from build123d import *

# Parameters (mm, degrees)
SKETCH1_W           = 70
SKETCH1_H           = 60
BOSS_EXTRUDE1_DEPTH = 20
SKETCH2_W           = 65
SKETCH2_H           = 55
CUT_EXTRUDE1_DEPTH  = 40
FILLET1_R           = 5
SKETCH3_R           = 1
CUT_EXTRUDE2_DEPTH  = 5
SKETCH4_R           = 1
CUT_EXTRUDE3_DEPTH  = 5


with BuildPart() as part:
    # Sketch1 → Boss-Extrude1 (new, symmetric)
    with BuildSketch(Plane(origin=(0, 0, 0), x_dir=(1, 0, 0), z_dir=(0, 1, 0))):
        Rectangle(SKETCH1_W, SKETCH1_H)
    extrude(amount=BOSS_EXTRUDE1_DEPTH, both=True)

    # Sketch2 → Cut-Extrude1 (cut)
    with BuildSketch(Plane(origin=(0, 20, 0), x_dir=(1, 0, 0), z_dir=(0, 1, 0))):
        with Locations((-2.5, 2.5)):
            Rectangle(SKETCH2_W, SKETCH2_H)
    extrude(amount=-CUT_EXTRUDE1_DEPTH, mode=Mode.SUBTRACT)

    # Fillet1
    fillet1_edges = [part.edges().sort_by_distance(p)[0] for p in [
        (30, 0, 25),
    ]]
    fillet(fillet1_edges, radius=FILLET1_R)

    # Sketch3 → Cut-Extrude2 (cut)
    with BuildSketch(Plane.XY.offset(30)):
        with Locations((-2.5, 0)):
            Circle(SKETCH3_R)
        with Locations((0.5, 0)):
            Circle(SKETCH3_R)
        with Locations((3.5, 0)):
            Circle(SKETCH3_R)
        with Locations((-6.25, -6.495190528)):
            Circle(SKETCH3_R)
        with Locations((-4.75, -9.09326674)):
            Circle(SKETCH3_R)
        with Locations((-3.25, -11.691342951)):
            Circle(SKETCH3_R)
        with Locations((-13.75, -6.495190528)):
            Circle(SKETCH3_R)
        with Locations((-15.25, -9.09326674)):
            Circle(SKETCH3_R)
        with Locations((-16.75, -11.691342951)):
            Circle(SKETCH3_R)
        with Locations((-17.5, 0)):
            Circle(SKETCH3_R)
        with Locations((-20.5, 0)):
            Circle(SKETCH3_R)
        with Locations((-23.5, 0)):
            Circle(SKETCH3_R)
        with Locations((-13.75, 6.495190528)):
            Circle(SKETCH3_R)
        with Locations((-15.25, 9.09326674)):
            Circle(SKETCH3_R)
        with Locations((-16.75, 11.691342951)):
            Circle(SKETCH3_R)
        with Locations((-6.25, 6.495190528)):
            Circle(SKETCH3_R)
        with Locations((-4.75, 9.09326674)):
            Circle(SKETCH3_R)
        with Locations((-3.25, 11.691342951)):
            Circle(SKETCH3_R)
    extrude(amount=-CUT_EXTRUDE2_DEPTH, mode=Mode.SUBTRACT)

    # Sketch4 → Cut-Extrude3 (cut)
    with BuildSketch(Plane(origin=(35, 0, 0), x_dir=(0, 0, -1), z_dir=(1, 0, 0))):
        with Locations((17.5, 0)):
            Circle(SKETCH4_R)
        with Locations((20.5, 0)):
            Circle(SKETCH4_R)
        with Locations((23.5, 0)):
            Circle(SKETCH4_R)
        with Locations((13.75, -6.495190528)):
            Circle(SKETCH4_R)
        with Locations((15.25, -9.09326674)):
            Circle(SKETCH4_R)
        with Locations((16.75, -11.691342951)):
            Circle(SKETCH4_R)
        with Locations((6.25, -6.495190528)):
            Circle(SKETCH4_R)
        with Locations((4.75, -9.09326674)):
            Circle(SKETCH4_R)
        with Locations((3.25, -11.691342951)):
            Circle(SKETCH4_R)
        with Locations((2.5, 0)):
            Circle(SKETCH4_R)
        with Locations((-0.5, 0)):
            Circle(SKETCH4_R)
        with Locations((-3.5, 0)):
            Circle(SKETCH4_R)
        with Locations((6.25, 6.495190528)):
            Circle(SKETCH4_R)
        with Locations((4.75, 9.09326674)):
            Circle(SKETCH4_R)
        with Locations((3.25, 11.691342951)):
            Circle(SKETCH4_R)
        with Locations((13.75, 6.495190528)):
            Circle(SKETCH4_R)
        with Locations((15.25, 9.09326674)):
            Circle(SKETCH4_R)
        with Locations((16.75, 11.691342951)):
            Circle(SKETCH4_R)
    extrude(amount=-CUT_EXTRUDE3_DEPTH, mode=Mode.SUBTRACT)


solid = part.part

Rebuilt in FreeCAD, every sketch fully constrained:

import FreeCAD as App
import Part
import Sketcher
from FreeCAD import Vector


def edges_at(feature, points):
    """Names of the edges that pass closest to the given points."""
    edges = feature.Shape.Edges
    near = lambda p: min(range(len(edges)), key=lambda i: edges[i].distToShape(Part.Vertex(*p))[0])
    return sorted({f"Edge{near(p) + 1}" for p in points})


def add_polygon(sketch, points):
    """Adds a closed chain of lines whose ends are joined by coincident constraints."""
    first, n = sketch.GeometryCount, len(points)
    for a, b in zip(points, points[1:] + points[:1]):
        sketch.addGeometry(Part.LineSegment(App.Vector(*a, 0), App.Vector(*b, 0)), False)
    for i in range(n):
        sketch.addConstraint(Sketcher.Constraint("Coincident", first + i, 2, first + (i + 1) % n, 1))

doc = App.newDocument("Part")
body = doc.addObject("PartDesign::Body", "Body")

# Sketch on XZ plane
sketch1 = body.newObject("Sketcher::SketchObject", "Sketch")
sketch1.AttachmentSupport = (doc.getObject("XZ_Plane"), [""])
sketch1.MapMode = "FlatFace"
add_polygon(sketch1, [(-35, -30), (-35, 30), (35, 30), (35, -30)])  # lines 0-3
sketch1.addConstraint([
    Sketcher.Constraint("Vertical", 0),
    Sketcher.Constraint("Horizontal", 1),
    Sketcher.Constraint("Vertical", 2),
    Sketcher.Constraint("Horizontal", 3),
    Sketcher.Constraint("Symmetric", 0, 2, 2, 2, -1, 1),
    Sketcher.Constraint("DistanceX", 1, 1, 1, 2, 70.0),
    Sketcher.Constraint("DistanceY", 0, 1, 0, 2, 60.0),
])
pad1 = body.newObject("PartDesign::Pad", "Pad")
pad1.Profile = sketch1
pad1.Length = 40
pad1.Midplane = True

# Sketch on XZ plane
sketch2 = body.newObject("Sketcher::SketchObject", "Sketch001")
sketch2.AttachmentSupport = (doc.getObject("XZ_Plane"), [""])
sketch2.MapMode = "FlatFace"
sketch2.AttachmentOffset = App.Placement(Vector(0, 0, -20), App.Rotation())
add_polygon(sketch2, [(-35, -30), (-35, 25), (30, 25), (30, -30)])  # lines 0-3
sketch2.addConstraint([
    Sketcher.Constraint("Vertical", 0),
    Sketcher.Constraint("Horizontal", 1),
    Sketcher.Constraint("Vertical", 2),
    Sketcher.Constraint("Horizontal", 3),
    Sketcher.Constraint("DistanceX", 1, 1, 1, 2, 65.0),
    Sketcher.Constraint("DistanceY", 0, 1, 0, 2, 55.0),
    Sketcher.Constraint("DistanceX", 0, 2, -1, 1, 35.0),
    Sketcher.Constraint("DistanceY", -1, 1, 0, 2, 25.0),
])
pocket1 = body.newObject("PartDesign::Pocket", "Pocket")
pocket1.Profile = sketch2
pocket1.Length = 40
pocket1.Reversed = True
doc.recompute()

fillet = body.newObject("PartDesign::Fillet", "Fillet")
fillet.Base = (pocket1, edges_at(pocket1, [(30, 0, 25)]))
fillet.Radius = 5

# Sketch on XY plane
sketch3 = body.newObject("Sketcher::SketchObject", "Sketch002")
sketch3.AttachmentSupport = (doc.getObject("XY_Plane"), [""])
sketch3.MapMode = "FlatFace"
sketch3.AttachmentOffset = App.Placement(Vector(0, 0, 30), App.Rotation())
sketch3.addGeometry([
    Part.Circle(Vector(-2.5, 0, 0), Vector(0, 0, 1), 1),  # 0
    Part.Circle(Vector(0.5, 0, 0), Vector(0, 0, 1), 1),  # 1
    Part.Circle(Vector(3.5, 0, 0), Vector(0, 0, 1), 1),  # 2
    Part.Circle(Vector(-6.2, -6.5, 0), Vector(0, 0, 1), 1),  # 3
    Part.Circle(Vector(-4.8, -9.1, 0), Vector(0, 0, 1), 1),  # 4
    Part.Circle(Vector(-3.2, -11.7, 0), Vector(0, 0, 1), 1),  # 5
    Part.Circle(Vector(-13.8, -6.5, 0), Vector(0, 0, 1), 1),  # 6
    Part.Circle(Vector(-15.2, -9.1, 0), Vector(0, 0, 1), 1),  # 7
    Part.Circle(Vector(-16.8, -11.7, 0), Vector(0, 0, 1), 1),  # 8
    Part.Circle(Vector(-17.5, 0, 0), Vector(0, 0, 1), 1),  # 9
    Part.Circle(Vector(-20.5, 0, 0), Vector(0, 0, 1), 1),  # 10
    Part.Circle(Vector(-23.5, 0, 0), Vector(0, 0, 1), 1),  # 11
    Part.Circle(Vector(-13.8, 6.5, 0), Vector(0, 0, 1), 1),  # 12
    Part.Circle(Vector(-15.2, 9.1, 0), Vector(0, 0, 1), 1),  # 13
    Part.Circle(Vector(-16.8, 11.7, 0), Vector(0, 0, 1), 1),  # 14
    Part.Circle(Vector(-6.2, 6.5, 0), Vector(0, 0, 1), 1),  # 15
    Part.Circle(Vector(-4.8, 9.1, 0), Vector(0, 0, 1), 1),  # 16
    Part.Circle(Vector(-3.2, 11.7, 0), Vector(0, 0, 1), 1),  # 17
], False)
sketch3.addConstraint([
    Sketcher.Constraint("Equal", 0, 1),
    Sketcher.Constraint("Equal", 1, 2),
    Sketcher.Constraint("Equal", 2, 3),
    Sketcher.Constraint("Equal", 3, 4),
    Sketcher.Constraint("Equal", 4, 5),
    Sketcher.Constraint("Equal", 5, 6),
    Sketcher.Constraint("Equal", 6, 7),
    Sketcher.Constraint("Equal", 7, 8),
    Sketcher.Constraint("Equal", 8, 9),
    Sketcher.Constraint("Equal", 9, 10),
    Sketcher.Constraint("Equal", 10, 11),
    Sketcher.Constraint("Equal", 11, 12),
    Sketcher.Constraint("Equal", 12, 13),
    Sketcher.Constraint("Equal", 13, 14),
    Sketcher.Constraint("Equal", 14, 15),
    Sketcher.Constraint("Equal", 15, 16),
    Sketcher.Constraint("Equal", 16, 17),
    Sketcher.Constraint("Symmetric", 6, 3, 12, 3, -1),
    Sketcher.Constraint("Symmetric", 7, 3, 13, 3, -1),
    Sketcher.Constraint("Symmetric", 8, 3, 14, 3, -1),
    Sketcher.Constraint("Symmetric", 3, 3, 15, 3, -1),
    Sketcher.Constraint("Symmetric", 4, 3, 16, 3, -1),
    Sketcher.Constraint("Symmetric", 5, 3, 17, 3, -1),
    Sketcher.Constraint("PointOnObject", 0, 3, -1),
    Sketcher.Constraint("PointOnObject", 1, 3, -1),
    Sketcher.Constraint("PointOnObject", 2, 3, -1),
    Sketcher.Constraint("PointOnObject", 9, 3, -1),
    Sketcher.Constraint("PointOnObject", 10, 3, -1),
    Sketcher.Constraint("PointOnObject", 11, 3, -1),
    Sketcher.Constraint("Horizontal", 3, 3, 6, 3),
    Sketcher.Constraint("Horizontal", 4, 3, 7, 3),
    Sketcher.Constraint("Horizontal", 5, 3, 8, 3),
    Sketcher.Constraint("Diameter", 0, 2.0),
    Sketcher.Constraint("DistanceX", 0, 3, 1, 3, 3.0),
    Sketcher.Constraint("DistanceX", 1, 3, 2, 3, 3.0),
    Sketcher.Constraint("DistanceX", 3, 3, 5, 3, 3.0),
    Sketcher.Constraint("DistanceX", 6, 3, 4, 3, 9.0),
    Sketcher.Constraint("DistanceX", 7, 3, 3, 3, 9.0),
    Sketcher.Constraint("DistanceX", 8, 3, 6, 3, 3.0),
    Sketcher.Constraint("DistanceX", 9, 3, 0, 3, 15.0),
    Sketcher.Constraint("DistanceX", 10, 3, 9, 3, 3.0),
    Sketcher.Constraint("DistanceX", 11, 3, 10, 3, 3.0),
    Sketcher.Constraint("DistanceX", 0, 3, -1, 1, 2.5),
    Sketcher.Constraint("DistanceX", 3, 3, 4, 3, 1.5),
    Sketcher.Constraint("DistanceX", 3, 3, -1, 1, 6.25),
    Sketcher.Constraint("DistanceY", 3, 3, -1, 1, 6.495191),
    Sketcher.Constraint("DistanceY", 4, 3, -1, 1, 9.093267),
    Sketcher.Constraint("DistanceY", 5, 3, -1, 1, 11.691343),
])
pocket2 = body.newObject("PartDesign::Pocket", "Pocket001")
pocket2.Profile = sketch3
pocket2.Length = 5

# Sketch on YZ plane
sketch4 = body.newObject("Sketcher::SketchObject", "Sketch003")
sketch4.AttachmentSupport = (doc.getObject("YZ_Plane"), [""])
sketch4.MapMode = "FlatFace"
sketch4.AttachmentOffset = App.Placement(Vector(0, 0, 35), App.Rotation())
sketch4.addGeometry([
    Part.Circle(Vector(0, -17.5, 0), Vector(0, 0, 1), 1),  # 0
    Part.Circle(Vector(0, -20.5, 0), Vector(0, 0, 1), 1),  # 1
    Part.Circle(Vector(0, -23.5, 0), Vector(0, 0, 1), 1),  # 2
    Part.Circle(Vector(-6.5, -13.8, 0), Vector(0, 0, 1), 1),  # 3
    Part.Circle(Vector(-9.1, -15.2, 0), Vector(0, 0, 1), 1),  # 4
    Part.Circle(Vector(-11.7, -16.8, 0), Vector(0, 0, 1), 1),  # 5
    Part.Circle(Vector(-6.5, -6.2, 0), Vector(0, 0, 1), 1),  # 6
    Part.Circle(Vector(-9.1, -4.8, 0), Vector(0, 0, 1), 1),  # 7
    Part.Circle(Vector(-11.7, -3.2, 0), Vector(0, 0, 1), 1),  # 8
    Part.Circle(Vector(0, -2.5, 0), Vector(0, 0, 1), 1),  # 9
    Part.Circle(Vector(0, 0.5, 0), Vector(0, 0, 1), 1),  # 10
    Part.Circle(Vector(0, 3.5, 0), Vector(0, 0, 1), 1),  # 11
    Part.Circle(Vector(6.5, -6.2, 0), Vector(0, 0, 1), 1),  # 12
    Part.Circle(Vector(9.1, -4.8, 0), Vector(0, 0, 1), 1),  # 13
    Part.Circle(Vector(11.7, -3.2, 0), Vector(0, 0, 1), 1),  # 14
    Part.Circle(Vector(6.5, -13.8, 0), Vector(0, 0, 1), 1),  # 15
    Part.Circle(Vector(9.1, -15.2, 0), Vector(0, 0, 1), 1),  # 16
    Part.Circle(Vector(11.7, -16.8, 0), Vector(0, 0, 1), 1),  # 17
], False)
sketch4.addConstraint([
    Sketcher.Constraint("Equal", 0, 1),
    Sketcher.Constraint("Equal", 1, 2),
    Sketcher.Constraint("Equal", 2, 3),
    Sketcher.Constraint("Equal", 3, 4),
    Sketcher.Constraint("Equal", 4, 5),
    Sketcher.Constraint("Equal", 5, 6),
    Sketcher.Constraint("Equal", 6, 7),
    Sketcher.Constraint("Equal", 7, 8),
    Sketcher.Constraint("Equal", 8, 9),
    Sketcher.Constraint("Equal", 9, 10),
    Sketcher.Constraint("Equal", 10, 11),
    Sketcher.Constraint("Equal", 11, 12),
    Sketcher.Constraint("Equal", 12, 13),
    Sketcher.Constraint("Equal", 13, 14),
    Sketcher.Constraint("Equal", 14, 15),
    Sketcher.Constraint("Equal", 15, 16),
    Sketcher.Constraint("Equal", 16, 17),
    Sketcher.Constraint("Symmetric", 6, 3, 12, 3, -2),
    Sketcher.Constraint("Symmetric", 7, 3, 13, 3, -2),
    Sketcher.Constraint("Symmetric", 8, 3, 14, 3, -2),
    Sketcher.Constraint("Symmetric", 3, 3, 15, 3, -2),
    Sketcher.Constraint("Symmetric", 4, 3, 16, 3, -2),
    Sketcher.Constraint("Symmetric", 5, 3, 17, 3, -2),
    Sketcher.Constraint("PointOnObject", 0, 3, -2),
    Sketcher.Constraint("PointOnObject", 1, 3, -2),
    Sketcher.Constraint("PointOnObject", 2, 3, -2),
    Sketcher.Constraint("PointOnObject", 9, 3, -2),
    Sketcher.Constraint("PointOnObject", 10, 3, -2),
    Sketcher.Constraint("PointOnObject", 11, 3, -2),
    Sketcher.Constraint("Vertical", 3, 3, 6, 3),
    Sketcher.Constraint("Vertical", 4, 3, 7, 3),
    Sketcher.Constraint("Vertical", 5, 3, 8, 3),
    Sketcher.Constraint("Diameter", 0, 2.0),
    Sketcher.Constraint("DistanceY", 1, 3, 0, 3, 3.0),
    Sketcher.Constraint("DistanceY", 2, 3, 1, 3, 3.0),
    Sketcher.Constraint("DistanceY", 5, 3, 3, 3, 3.0),
    Sketcher.Constraint("DistanceY", 4, 3, 6, 3, 9.0),
    Sketcher.Constraint("DistanceY", 3, 3, 7, 3, 9.0),
    Sketcher.Constraint("DistanceY", 6, 3, 8, 3, 3.0),
    Sketcher.Constraint("DistanceY", 0, 3, 9, 3, 15.0),
    Sketcher.Constraint("DistanceY", 9, 3, 10, 3, 3.0),
    Sketcher.Constraint("DistanceY", 10, 3, 11, 3, 3.0),
    Sketcher.Constraint("DistanceY", 0, 3, -1, 1, 17.5),
    Sketcher.Constraint("DistanceY", 4, 3, 3, 3, 1.5),
    Sketcher.Constraint("DistanceY", 3, 3, -1, 1, 13.75),
    Sketcher.Constraint("DistanceX", 3, 3, -1, 1, 6.495191),
    Sketcher.Constraint("DistanceX", 4, 3, -1, 1, 9.093267),
    Sketcher.Constraint("DistanceX", 5, 3, -1, 1, 11.691343),
])
pocket3 = body.newObject("PartDesign::Pocket", "Pocket002")
pocket3.Profile = sketch4
pocket3.Length = 5

doc.recompute()
